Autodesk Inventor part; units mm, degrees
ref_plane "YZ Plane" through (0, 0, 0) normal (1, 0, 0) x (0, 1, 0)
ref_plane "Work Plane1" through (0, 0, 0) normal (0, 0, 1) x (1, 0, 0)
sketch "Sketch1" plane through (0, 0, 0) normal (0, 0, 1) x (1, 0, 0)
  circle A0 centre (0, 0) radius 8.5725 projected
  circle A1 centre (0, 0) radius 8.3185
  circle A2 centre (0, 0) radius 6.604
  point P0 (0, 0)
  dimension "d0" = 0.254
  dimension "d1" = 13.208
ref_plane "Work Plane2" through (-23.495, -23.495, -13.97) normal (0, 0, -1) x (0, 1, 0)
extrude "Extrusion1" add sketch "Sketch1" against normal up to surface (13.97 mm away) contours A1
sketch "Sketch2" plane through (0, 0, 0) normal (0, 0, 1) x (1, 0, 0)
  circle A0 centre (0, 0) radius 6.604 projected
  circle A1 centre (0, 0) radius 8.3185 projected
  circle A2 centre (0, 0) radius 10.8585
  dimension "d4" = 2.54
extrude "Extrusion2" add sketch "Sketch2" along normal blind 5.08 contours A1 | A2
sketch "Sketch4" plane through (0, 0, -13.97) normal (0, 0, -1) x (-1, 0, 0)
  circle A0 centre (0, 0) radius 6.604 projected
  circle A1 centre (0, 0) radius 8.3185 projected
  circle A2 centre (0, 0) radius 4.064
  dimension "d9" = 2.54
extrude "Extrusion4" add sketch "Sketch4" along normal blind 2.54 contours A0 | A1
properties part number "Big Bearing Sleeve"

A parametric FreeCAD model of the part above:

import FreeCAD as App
import Part
import Sketcher
from FreeCAD import Vector
Q = App.Units.Quantity

doc = App.newDocument("Part")
params = doc.addObject("Spreadsheet::Sheet", "Params")
for row, (alias, value) in enumerate([
    ("sketch1_diameter", "0.52 in"),
    ("sketch1_diameter2", "0.655 in"),
    ("pad1_length", "0.55 in"),
    ("sketch2_diameter", "0.52 in"),
    ("sketch2_diameter2", "0.855 in"),
    ("pad2_length", "0.2 in"),
    ("sketch3_diameter", "0.32 in"),
    ("sketch3_diameter2", "0.655 in"),
    ("pad3_length", "0.1 in"),
], start=1):
    params.set(f"A{row}", alias)
    params.set(f"B{row}", "=" + value)
    params.setAlias(f"B{row}", alias)

body = doc.addObject("PartDesign::Body", "Body")

# Sketch on XY plane
sketch1 = body.newObject("Sketcher::SketchObject", "Sketch")
sketch1.AttachmentSupport = (doc.getObject("XY_Plane"), [""])
sketch1.MapMode = "FlatFace"
sketch1.addGeometry(Part.Circle(Vector(0, 0, 0), Vector(0, 0, 1), 8.3185), False)
sketch1.addGeometry(Part.Circle(Vector(0, 0, 0), Vector(0, 0, 1), 6.604), False)
sketch1.addConstraint(Sketcher.Constraint("Coincident", 0, 3, -1, 1))
sketch1.addConstraint(Sketcher.Constraint("Coincident", 1, 3, -1, 1))
sketch1.addConstraint(Sketcher.Constraint("Diameter", 1, Q("0.52 in")))
sketch1.addConstraint(Sketcher.Constraint("Diameter", 0, Q("0.655 in")))
sketch1.setExpression("Constraints[2]", "Params.sketch1_diameter")
sketch1.setExpression("Constraints[3]", "Params.sketch1_diameter2")
pad1 = body.newObject("PartDesign::Pad", "Pad")
pad1.Profile = sketch1
pad1.setExpression("Length", "Params.pad1_length")
pad1.Reversed = True

# Sketch on XY plane
sketch2 = body.newObject("Sketcher::SketchObject", "Sketch001")
sketch2.AttachmentSupport = (doc.getObject("XY_Plane"), [""])
sketch2.MapMode = "FlatFace"
sketch2.addGeometry(Part.Circle(Vector(0, 0, 0), Vector(0, 0, 1), 10.8585), False)
sketch2.addGeometry(Part.Circle(Vector(0, 0, 0), Vector(0, 0, 1), 6.604), False)
sketch2.addConstraint(Sketcher.Constraint("Coincident", 0, 3, -1, 1))
sketch2.addConstraint(Sketcher.Constraint("Coincident", 1, 3, -1, 1))
sketch2.addConstraint(Sketcher.Constraint("Diameter", 1, Q("0.52 in")))
sketch2.addConstraint(Sketcher.Constraint("Diameter", 0, Q("0.855 in")))
sketch2.setExpression("Constraints[2]", "Params.sketch2_diameter")
sketch2.setExpression("Constraints[3]", "Params.sketch2_diameter2")
pad2 = body.newObject("PartDesign::Pad", "Pad001")
pad2.Profile = sketch2
pad2.setExpression("Length", "Params.pad2_length")

# Sketch on XY plane
sketch3 = body.newObject("Sketcher::SketchObject", "Sketch002")
sketch3.AttachmentSupport = (doc.getObject("XY_Plane"), [""])
sketch3.MapMode = "FlatFace"
sketch3.AttachmentOffset = App.Placement(Vector(0, 0, -0.55 * 25.4), App.Rotation())
sketch3.addGeometry(Part.Circle(Vector(0, 0, 0), Vector(0, 0, 1), 8.3185), False)
sketch3.addGeometry(Part.Circle(Vector(0, 0, 0), Vector(0, 0, 1), 4.064), False)
sketch3.addConstraint(Sketcher.Constraint("Coincident", 0, 3, -1, 1))
sketch3.addConstraint(Sketcher.Constraint("Coincident", 1, 3, -1, 1))
sketch3.addConstraint(Sketcher.Constraint("Diameter", 1, Q("0.32 in")))
sketch3.addConstraint(Sketcher.Constraint("Diameter", 0, Q("0.655 in")))
sketch3.setExpression("Constraints[2]", "Params.sketch3_diameter")
sketch3.setExpression("Constraints[3]", "Params.sketch3_diameter2")
pad3 = body.newObject("PartDesign::Pad", "Pad002")
pad3.Profile = sketch3
pad3.setExpression("Length", "Params.pad3_length")
pad3.Reversed = True

doc.recompute()
